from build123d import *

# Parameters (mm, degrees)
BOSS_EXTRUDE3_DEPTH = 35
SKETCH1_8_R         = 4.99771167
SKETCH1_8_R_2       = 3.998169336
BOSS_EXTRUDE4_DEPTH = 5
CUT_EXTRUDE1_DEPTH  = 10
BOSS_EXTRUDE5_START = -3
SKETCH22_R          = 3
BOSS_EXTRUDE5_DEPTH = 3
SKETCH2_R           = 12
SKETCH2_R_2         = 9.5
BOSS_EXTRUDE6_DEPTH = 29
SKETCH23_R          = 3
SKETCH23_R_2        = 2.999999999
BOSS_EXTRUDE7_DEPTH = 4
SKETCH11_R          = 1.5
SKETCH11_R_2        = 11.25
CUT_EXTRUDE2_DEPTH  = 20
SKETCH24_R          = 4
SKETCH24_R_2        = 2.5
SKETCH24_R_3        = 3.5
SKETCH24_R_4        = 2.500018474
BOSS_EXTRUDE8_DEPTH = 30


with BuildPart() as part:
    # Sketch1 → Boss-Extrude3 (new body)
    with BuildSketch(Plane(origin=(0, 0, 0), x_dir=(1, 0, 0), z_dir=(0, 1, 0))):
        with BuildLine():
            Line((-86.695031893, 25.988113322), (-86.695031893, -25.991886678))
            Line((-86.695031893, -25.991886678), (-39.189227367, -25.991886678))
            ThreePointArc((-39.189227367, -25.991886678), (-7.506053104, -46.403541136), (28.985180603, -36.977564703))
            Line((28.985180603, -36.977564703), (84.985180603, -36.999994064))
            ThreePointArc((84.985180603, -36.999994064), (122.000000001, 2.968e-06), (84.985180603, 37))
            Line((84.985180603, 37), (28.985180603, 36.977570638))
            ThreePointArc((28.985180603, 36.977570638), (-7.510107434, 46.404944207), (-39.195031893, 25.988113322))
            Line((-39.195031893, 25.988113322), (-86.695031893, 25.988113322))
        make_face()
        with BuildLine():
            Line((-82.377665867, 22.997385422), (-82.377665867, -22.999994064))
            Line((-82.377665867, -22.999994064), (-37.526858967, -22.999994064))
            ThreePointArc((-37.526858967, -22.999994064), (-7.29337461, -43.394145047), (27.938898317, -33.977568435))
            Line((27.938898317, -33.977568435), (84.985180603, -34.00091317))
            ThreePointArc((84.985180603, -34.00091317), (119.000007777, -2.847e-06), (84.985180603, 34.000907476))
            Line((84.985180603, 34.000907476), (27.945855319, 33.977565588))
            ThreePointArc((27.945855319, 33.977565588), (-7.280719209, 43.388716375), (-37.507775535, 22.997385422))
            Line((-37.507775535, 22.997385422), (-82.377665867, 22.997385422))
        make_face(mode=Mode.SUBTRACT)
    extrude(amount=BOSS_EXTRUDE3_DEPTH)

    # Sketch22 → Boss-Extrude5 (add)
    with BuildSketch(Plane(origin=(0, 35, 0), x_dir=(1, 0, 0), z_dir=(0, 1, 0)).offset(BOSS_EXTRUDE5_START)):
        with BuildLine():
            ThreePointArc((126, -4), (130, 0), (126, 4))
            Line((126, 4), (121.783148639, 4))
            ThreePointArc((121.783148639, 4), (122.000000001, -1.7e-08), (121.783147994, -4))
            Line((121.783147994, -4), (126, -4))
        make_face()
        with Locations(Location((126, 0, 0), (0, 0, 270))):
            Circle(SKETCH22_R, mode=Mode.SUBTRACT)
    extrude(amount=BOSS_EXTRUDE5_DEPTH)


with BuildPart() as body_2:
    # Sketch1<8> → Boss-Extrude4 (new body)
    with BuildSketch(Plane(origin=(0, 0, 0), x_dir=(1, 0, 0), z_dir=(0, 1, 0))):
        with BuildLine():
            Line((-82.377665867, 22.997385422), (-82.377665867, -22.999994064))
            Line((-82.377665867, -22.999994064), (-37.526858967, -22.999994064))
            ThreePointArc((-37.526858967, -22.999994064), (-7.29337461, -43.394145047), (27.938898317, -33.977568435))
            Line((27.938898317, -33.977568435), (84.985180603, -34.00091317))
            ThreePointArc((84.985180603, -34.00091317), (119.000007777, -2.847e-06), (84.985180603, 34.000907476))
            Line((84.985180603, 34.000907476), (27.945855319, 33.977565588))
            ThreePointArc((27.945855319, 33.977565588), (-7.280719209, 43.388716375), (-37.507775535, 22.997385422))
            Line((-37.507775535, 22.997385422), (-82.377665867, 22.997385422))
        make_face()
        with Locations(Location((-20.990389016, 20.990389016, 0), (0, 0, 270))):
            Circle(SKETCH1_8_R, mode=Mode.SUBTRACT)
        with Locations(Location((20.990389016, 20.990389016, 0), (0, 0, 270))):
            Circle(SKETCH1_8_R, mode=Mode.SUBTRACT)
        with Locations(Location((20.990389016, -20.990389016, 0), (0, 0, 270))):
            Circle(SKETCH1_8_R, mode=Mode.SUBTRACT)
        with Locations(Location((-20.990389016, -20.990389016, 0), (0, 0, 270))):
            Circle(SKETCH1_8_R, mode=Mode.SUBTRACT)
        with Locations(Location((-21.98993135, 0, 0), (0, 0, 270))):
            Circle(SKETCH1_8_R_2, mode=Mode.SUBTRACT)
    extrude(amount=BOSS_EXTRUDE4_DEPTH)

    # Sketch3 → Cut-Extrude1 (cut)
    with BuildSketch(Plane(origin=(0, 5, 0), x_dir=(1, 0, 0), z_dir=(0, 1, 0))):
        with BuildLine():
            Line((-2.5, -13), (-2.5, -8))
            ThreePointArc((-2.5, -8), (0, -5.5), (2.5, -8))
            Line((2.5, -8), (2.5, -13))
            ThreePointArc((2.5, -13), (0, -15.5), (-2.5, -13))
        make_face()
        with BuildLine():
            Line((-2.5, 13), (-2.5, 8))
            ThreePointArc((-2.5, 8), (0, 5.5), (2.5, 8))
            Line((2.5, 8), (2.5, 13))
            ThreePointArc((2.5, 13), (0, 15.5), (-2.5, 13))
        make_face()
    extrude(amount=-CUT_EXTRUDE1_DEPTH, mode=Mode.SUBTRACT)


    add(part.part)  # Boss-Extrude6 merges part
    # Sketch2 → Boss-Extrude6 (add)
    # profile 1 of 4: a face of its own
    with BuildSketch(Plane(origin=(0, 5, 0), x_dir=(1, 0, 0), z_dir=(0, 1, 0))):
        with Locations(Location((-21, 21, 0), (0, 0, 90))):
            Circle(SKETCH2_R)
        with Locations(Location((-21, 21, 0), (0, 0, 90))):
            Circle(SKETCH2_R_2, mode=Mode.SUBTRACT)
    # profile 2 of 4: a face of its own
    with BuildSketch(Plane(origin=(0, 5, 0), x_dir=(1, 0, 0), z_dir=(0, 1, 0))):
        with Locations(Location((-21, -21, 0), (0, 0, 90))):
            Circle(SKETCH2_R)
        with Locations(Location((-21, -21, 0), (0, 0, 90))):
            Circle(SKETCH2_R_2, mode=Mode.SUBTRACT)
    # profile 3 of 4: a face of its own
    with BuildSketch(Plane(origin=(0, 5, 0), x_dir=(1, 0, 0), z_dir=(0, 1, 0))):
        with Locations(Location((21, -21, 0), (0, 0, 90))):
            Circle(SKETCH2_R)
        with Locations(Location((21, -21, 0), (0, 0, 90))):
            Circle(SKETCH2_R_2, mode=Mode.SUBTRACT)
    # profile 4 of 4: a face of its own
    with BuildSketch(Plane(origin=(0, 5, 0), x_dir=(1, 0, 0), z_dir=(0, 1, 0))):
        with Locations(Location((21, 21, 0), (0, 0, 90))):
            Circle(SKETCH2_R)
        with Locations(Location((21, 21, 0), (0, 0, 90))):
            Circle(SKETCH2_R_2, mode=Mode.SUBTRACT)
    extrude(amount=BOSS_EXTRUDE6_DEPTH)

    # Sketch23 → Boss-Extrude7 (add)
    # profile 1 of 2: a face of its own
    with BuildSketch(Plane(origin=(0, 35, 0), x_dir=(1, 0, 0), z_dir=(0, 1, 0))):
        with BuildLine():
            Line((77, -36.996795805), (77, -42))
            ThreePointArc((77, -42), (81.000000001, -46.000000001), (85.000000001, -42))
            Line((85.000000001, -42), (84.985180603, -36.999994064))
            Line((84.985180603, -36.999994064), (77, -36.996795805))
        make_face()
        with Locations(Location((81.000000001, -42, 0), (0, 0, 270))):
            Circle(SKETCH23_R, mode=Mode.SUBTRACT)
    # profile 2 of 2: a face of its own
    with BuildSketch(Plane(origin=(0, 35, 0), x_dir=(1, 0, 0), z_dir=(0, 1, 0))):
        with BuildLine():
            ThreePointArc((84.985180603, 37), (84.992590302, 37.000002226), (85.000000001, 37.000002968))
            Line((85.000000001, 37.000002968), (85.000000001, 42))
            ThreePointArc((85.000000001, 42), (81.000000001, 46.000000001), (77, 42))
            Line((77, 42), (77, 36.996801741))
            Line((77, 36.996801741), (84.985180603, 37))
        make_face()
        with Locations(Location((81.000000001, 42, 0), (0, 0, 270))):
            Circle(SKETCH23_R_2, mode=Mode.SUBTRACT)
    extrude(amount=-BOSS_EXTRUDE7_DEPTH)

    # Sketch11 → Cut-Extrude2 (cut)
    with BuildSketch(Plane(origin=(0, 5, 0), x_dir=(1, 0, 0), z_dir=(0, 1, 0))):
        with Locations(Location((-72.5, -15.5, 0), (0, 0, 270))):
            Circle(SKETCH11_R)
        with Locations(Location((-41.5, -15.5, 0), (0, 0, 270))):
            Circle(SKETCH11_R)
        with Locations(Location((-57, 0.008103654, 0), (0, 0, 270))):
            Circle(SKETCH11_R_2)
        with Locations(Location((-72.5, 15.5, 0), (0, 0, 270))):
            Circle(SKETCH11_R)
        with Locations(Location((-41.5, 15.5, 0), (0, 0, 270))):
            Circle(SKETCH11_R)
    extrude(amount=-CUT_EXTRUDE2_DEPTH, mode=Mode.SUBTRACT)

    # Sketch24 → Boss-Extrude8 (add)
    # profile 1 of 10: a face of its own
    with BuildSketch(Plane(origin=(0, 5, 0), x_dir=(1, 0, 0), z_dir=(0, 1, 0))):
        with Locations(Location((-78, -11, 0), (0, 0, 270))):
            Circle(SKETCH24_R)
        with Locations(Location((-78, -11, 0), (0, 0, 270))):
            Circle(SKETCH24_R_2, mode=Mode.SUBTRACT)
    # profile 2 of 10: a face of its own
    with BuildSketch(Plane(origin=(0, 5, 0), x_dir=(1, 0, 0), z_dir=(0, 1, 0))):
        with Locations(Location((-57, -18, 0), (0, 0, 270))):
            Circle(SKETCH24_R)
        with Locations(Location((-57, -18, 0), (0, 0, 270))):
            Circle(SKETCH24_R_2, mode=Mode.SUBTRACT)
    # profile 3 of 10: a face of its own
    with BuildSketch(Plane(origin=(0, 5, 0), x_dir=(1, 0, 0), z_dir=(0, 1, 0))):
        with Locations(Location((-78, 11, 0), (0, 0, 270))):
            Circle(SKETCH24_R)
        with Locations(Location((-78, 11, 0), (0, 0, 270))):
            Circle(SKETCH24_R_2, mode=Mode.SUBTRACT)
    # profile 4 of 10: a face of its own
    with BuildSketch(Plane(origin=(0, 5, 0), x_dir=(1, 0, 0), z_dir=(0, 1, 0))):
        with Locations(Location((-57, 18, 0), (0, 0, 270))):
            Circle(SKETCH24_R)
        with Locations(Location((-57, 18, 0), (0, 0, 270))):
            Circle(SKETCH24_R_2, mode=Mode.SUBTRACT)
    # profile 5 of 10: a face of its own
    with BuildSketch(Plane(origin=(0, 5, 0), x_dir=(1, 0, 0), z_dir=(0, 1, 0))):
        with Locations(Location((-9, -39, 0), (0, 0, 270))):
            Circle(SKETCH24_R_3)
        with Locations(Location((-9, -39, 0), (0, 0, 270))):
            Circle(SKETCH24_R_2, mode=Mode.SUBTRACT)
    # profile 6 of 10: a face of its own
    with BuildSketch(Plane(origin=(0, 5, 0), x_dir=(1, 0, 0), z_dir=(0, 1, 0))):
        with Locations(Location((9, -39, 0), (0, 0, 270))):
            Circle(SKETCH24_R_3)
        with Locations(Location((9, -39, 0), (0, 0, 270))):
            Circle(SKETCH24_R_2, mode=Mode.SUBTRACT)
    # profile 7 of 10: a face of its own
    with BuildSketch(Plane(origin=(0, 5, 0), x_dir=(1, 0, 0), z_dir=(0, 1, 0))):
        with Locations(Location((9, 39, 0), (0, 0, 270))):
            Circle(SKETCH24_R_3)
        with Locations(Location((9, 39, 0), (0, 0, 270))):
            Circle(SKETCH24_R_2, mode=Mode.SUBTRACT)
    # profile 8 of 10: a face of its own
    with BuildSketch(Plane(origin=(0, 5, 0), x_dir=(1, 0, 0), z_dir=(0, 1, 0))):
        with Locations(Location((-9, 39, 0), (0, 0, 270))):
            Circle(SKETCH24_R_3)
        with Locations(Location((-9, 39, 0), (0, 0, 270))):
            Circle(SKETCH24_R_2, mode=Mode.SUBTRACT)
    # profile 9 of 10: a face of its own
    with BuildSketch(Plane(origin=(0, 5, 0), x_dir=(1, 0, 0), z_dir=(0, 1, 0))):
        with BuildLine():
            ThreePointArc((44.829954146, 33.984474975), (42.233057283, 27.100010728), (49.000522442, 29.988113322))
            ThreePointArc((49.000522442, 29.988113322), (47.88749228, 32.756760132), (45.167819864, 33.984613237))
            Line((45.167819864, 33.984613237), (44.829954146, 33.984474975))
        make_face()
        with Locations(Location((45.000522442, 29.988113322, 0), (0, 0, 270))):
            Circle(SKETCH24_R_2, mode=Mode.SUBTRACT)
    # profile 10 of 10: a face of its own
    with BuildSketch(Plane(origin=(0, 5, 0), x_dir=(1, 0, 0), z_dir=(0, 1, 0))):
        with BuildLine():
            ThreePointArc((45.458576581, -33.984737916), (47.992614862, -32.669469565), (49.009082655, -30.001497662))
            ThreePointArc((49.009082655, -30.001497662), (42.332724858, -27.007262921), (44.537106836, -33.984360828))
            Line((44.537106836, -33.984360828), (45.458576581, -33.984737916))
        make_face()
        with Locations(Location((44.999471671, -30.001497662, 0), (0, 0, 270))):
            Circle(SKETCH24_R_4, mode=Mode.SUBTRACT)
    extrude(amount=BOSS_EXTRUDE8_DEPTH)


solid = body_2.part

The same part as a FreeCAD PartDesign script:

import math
import FreeCAD as App
import Part
import Sketcher

V = App.Vector
Q = App.Units.Quantity

doc = App.newDocument("Part")
body = doc.addObject("PartDesign::Body", "Body")

# Sketch on XZ plane
sketch1 = doc.addObject("Sketcher::SketchObject", "Sketch")
body.addObject(sketch1)
sketch1.AttachmentSupport = (doc.XZ_Plane, [""])
sketch1.MapMode = "FlatFace"
sketch1.addGeometry([
    Part.LineSegment(V(-86.695032, -25.988113, 0), V(-86.695032, 25.991887, 0)),  # 0
    Part.LineSegment(V(-86.695032, 25.991887, 0), V(-39.189227, 25.991887, 0)),  # 1
    Part.ArcOfCircle(Part.Circle(V(-0.028891, 0.002118, 0), V(0, 0, 1), 47), math.radians(51.879261), math.radians(146.428732)),  # 2
    Part.LineSegment(V(28.985181, 36.977565, 0), V(84.985181, 36.999994, 0)),  # 3
    Part.ArcOfCircle(Part.Circle(V(85, -0.000003, 0), V(0, 0, 1), 37), math.radians(-90.022948), math.radians(90.022948)),  # 4
    Part.LineSegment(V(84.985181, -37, 0), V(28.985181, -36.977571, 0)),  # 5
    Part.ArcOfCircle(Part.Circle(V(-0.031059, -0.003825, 0), V(0, 0, 1), 47), math.radians(-146.43675), math.radians(-51.875902)),  # 6
    Part.LineSegment(V(-39.195032, -25.988113, 0), V(-86.695032, -25.988113, 0)),  # 7
    Part.LineSegment(V(-82.377666, 22.999994, 0), V(-82.377666, -22.997385, 0)),  # 8
    Part.LineSegment(V(-82.377666, -22.997385, 0), V(-37.507776, -22.997385, 0)),  # 9
    Part.ArcOfCircle(Part.Circle(V(-0.002041, 0, 0), V(0, 0, 1), 43.994998), math.radians(-148.48463), math.radians(-50.561347)),  # 10
    Part.LineSegment(V(27.945855, -33.977566, 0), V(84.985181, -34.000907, 0)),  # 11
    Part.ArcOfCircle(Part.Circle(V(84.999095, 0.000003, 0), V(0, 0, 1), 34.000913), math.radians(-90.023447), math.radians(90.023447)),  # 12
    Part.LineSegment(V(84.985181, 34.000913, 0), V(27.938898, 33.977568, 0)),  # 13
    Part.ArcOfCircle(Part.Circle(V(-0.01686, -0.000006, 0), V(0, 0, 1), 44), math.radians(50.553447), math.radians(148.48463)),  # 14
    Part.LineSegment(V(-37.526859, 22.999994, 0), V(-82.377666, 22.999994, 0)),  # 15
], False)
sketch1.addConstraint([
    Sketcher.Constraint("Coincident", 0, 2, 1, 1),
    Sketcher.Constraint("Coincident", 1, 2, 2, 2),
    Sketcher.Constraint("Coincident", 2, 1, 3, 1),
    Sketcher.Constraint("Coincident", 3, 2, 4, 2),
    Sketcher.Constraint("Coincident", 4, 1, 5, 1),
    Sketcher.Constraint("Coincident", 5, 2, 6, 2),
    Sketcher.Constraint("Coincident", 6, 1, 7, 1),
    Sketcher.Constraint("Coincident", 7, 2, 0, 1),
    Sketcher.Constraint("Coincident", 8, 2, 9, 1),
    Sketcher.Constraint("Coincident", 9, 2, 10, 1),
    Sketcher.Constraint("Coincident", 10, 2, 11, 1),
    Sketcher.Constraint("Coincident", 11, 2, 12, 1),
    Sketcher.Constraint("Coincident", 12, 2, 13, 1),
    Sketcher.Constraint("Coincident", 13, 2, 14, 1),
    Sketcher.Constraint("Coincident", 14, 2, 15, 1),
    Sketcher.Constraint("Coincident", 15, 2, 8, 1),
    Sketcher.Constraint("Vertical", 0),
    Sketcher.Constraint("Horizontal", 1),
    Sketcher.Constraint("Horizontal", 7),
    Sketcher.Constraint("Vertical", 8),
    Sketcher.Constraint("Horizontal", 9),
    Sketcher.Constraint("Horizontal", 15),
    Sketcher.Constraint("PointOnObject", 10, 3, -1),
    Sketcher.Constraint("Radius", 2, Q("47 mm")),
    Sketcher.Constraint("Radius", 4, Q("37 mm")),
    Sketcher.Constraint("Radius", 6, Q("47 mm")),
    Sketcher.Constraint("Radius", 14, Q("44 mm")),
    Sketcher.Constraint("DistanceX", 7, 2, 7, 1, Q("47.5 mm")),
    Sketcher.Constraint("DistanceX", -1, 1, 4, 3, Q("85 mm")),
    Sketcher.Constraint("DistanceY", 4, 1, -1, 1, Q("37 mm")),
    Sketcher.Constraint("Radius", 10, Q("43.994998 mm")),
    Sketcher.Constraint("DistanceX", 2, 1, 3, 2, Q("56 mm")),
    Sketcher.Constraint("DistanceY", 14, 3, 3, 2, Q("37 mm")),
    Sketcher.Constraint("DistanceX", 5, 2, 4, 1, Q("56 mm")),
    Sketcher.Constraint("DistanceX", 5, 2, 11, 2, Q("56 mm")),
    Sketcher.Constraint("DistanceX", 2, 1, 12, 2, Q("56 mm")),
    Sketcher.Constraint("DistanceY", 14, 3, 14, 2, Q("23 mm")),
    Sketcher.Constraint("DistanceY", 0, 1, 0, 2, Q("51.98 mm")),
    Sketcher.Constraint("Radius", 12, Q("34.000913 mm")),
    Sketcher.Constraint("DistanceX", 9, 1, 9, 2, Q("44.86989 mm")),
    Sketcher.Constraint("DistanceY", 8, 2, 8, 1, Q("45.997379 mm")),
    Sketcher.Constraint("DistanceX", -1, 1, 13, 2, Q("27.938898 mm")),
    Sketcher.Constraint("DistanceX", 6, 3, 14, 3, Q("0.014199 mm")),
    Sketcher.Constraint("Distance", 11, Q("57.03933 mm")),
    Sketcher.Constraint("DistanceX", 1, 1, 1, 2, Q("47.505805 mm")),
    Sketcher.Constraint("DistanceX", 15, 2, 15, 1, Q("44.850807 mm")),
    Sketcher.Constraint("DistanceX", 2, 3, -1, 1, Q("0.028891 mm")),
    Sketcher.Constraint("DistanceY", -1, 1, 2, 3, Q("0.002118 mm")),
    Sketcher.Constraint("DistanceX", 6, 3, -1, 1, Q("0.031059 mm")),
    Sketcher.Constraint("DistanceX", 0, 2, -1, 1, Q("86.695032 mm")),
    Sketcher.Constraint("DistanceX", -1, 1, 2, 1, Q("28.985181 mm")),
    Sketcher.Constraint("DistanceX", -1, 1, 4, 1, Q("84.985181 mm")),
    Sketcher.Constraint("DistanceY", 6, 3, 12, 3, Q("0.003828 mm")),
    Sketcher.Constraint("DistanceX", -1, 1, 12, 3, Q("84.999095 mm")),
])
pad1 = doc.addObject("PartDesign::Pad", "Pad")
body.addObject(pad1)
pad1.Profile = sketch1
pad1.Length = 35
pad1.Reversed = True

# Sketch on XZ plane
sketch2 = doc.addObject("Sketcher::SketchObject", "Sketch001")
body.addObject(sketch2)
sketch2.AttachmentSupport = (doc.XZ_Plane, [""])
sketch2.MapMode = "FlatFace"
sketch2.AttachmentOffset = App.Placement(V(0, 0, -32), App.Rotation())
sketch2.addGeometry([
    Part.ArcOfCircle(Part.Circle(V(126, 0, 0), V(0, 0, 1), 4), math.radians(-90), math.radians(90)),  # 0
    Part.LineSegment(V(126, -4, 0), V(121.8, -4, 0)),  # 1
    Part.ArcOfCircle(Part.Circle(V(85, 0, 0), V(0, 0, 1), 37), math.radians(-6.21), math.radians(6.21)),  # 2
    Part.LineSegment(V(121.8, 4, 0), V(126, 4, 0)),  # 3
    Part.Circle(V(126, 0, 0), V(0, 0, 1), 3),  # 4
], False)
sketch2.addConstraint([
    Sketcher.Constraint("Tangent", 0, 1, 1, 1),
    Sketcher.Constraint("Coincident", 1, 2, 2, 1),
    Sketcher.Constraint("Coincident", 2, 2, 3, 1),
    Sketcher.Constraint("Tangent", 3, 2, 0, 2),
    Sketcher.Constraint("Horizontal", 1),
    Sketcher.Constraint("Horizontal", 3),
    Sketcher.Constraint("Coincident", 4, 3, 0, 3),
    Sketcher.Constraint("Symmetric", 1, 2, 2, 2, -1),
    Sketcher.Constraint("Diameter", 4, Q("6 mm")),
    Sketcher.Constraint("Radius", 0, Q("4 mm")),
    Sketcher.Constraint("Radius", 2, Q("37 mm")),
    Sketcher.Constraint("DistanceX", -1, 1, 0, 3, Q("126 mm")),
    Sketcher.Constraint("DistanceX", -1, 1, 2, 3, Q("85 mm")),
])
pad2 = doc.addObject("PartDesign::Pad", "Pad001")
body.addObject(pad2)
pad2.Profile = sketch2
pad2.Length = 3
pad2.Reversed = True
body2 = doc.addObject("PartDesign::Body", "Body001")

# Sketch on XZ plane
sketch3 = doc.addObject("Sketcher::SketchObject", "Sketch002")
body2.addObject(sketch3)
sketch3.AttachmentSupport = (doc.getObject("XZ_Plane001"), [""])
sketch3.MapMode = "FlatFace"
sketch3.addGeometry([
    Part.LineSegment(V(-82.4, -23, 0), V(-82.4, 23, 0)),  # 0
    Part.LineSegment(V(-82.4, 23, 0), V(-37.5, 23, 0)),  # 1
    Part.ArcOfCircle(Part.Circle(V(0, 0, 0), V(0, 0, 1), 44), math.radians(51), math.radians(148)),  # 2
    Part.LineSegment(V(27.9, 34, 0), V(85, 34, 0)),  # 3
    Part.ArcOfCircle(Part.Circle(V(85, 0, 0), V(0, 0, 1), 34), math.radians(-90), math.radians(90)),  # 4
    Part.LineSegment(V(85, -34, 0), V(27.9, -34, 0)),  # 5
    Part.ArcOfCircle(Part.Circle(V(0, 0, 0), V(0, 0, 1), 44), math.radians(-148), math.radians(-51)),  # 6
    Part.LineSegment(V(-37.5, -23, 0), V(-82.4, -23, 0)),  # 7
    Part.Circle(V(-21, 21, 0), V(0, 0, 1), 5),  # 8
    Part.Circle(V(-22, 0, 0), V(0, 0, 1), 4),  # 9
    Part.Circle(V(21, 21, 0), V(0, 0, 1), 5),  # 10
    Part.Circle(V(-21, -21, 0), V(0, 0, 1), 5),  # 11
    Part.Circle(V(21, -21, 0), V(0, 0, 1), 5),  # 12
], False)
sketch3.addConstraint([
    Sketcher.Constraint("Coincident", 0, 2, 1, 1),
    Sketcher.Constraint("Coincident", 1, 2, 2, 2),
    Sketcher.Constraint("Coincident", 2, 1, 3, 1),
    Sketcher.Constraint("Tangent", 3, 2, 4, 2),
    Sketcher.Constraint("Tangent", 4, 1, 5, 1),
    Sketcher.Constraint("Coincident", 5, 2, 6, 2),
    Sketcher.Constraint("Coincident", 6, 1, 7, 1),
    Sketcher.Constraint("Coincident", 7, 2, 0, 1),
    Sketcher.Constraint("Vertical", 0),
    Sketcher.Constraint("Horizontal", 1),
    Sketcher.Constraint("Horizontal", 7),
    Sketcher.Constraint("Equal", 8, 10),
    Sketcher.Constraint("Equal", 10, 11),
    Sketcher.Constraint("Equal", 11, 12),
    Sketcher.Constraint("Symmetric", 10, 3, 11, 3, -1, 1),
    Sketcher.Constraint("Symmetric", 8, 3, 12, 3, -1, 1),
    Sketcher.Constraint("Symmetric", 8, 3, 10, 3, -2),
    Sketcher.Constraint("Symmetric", 3, 2, 4, 1, -1),
    Sketcher.Constraint("PointOnObject", 6, 3, -1),
    Sketcher.Constraint("PointOnObject", 9, 3, -1),
    Sketcher.Constraint("Radius", 2, Q("44 mm")),
    Sketcher.Constraint("Radius", 6, Q("43.994998 mm")),
    Sketcher.Constraint("DistanceY", 2, 3, 0, 2, Q("23 mm")),
    Sketcher.Constraint("Diameter", 9, Q("7.996339 mm")),
    Sketcher.Constraint("Diameter", 8, Q("9.995423 mm")),
    Sketcher.Constraint("Radius", 4, Q("34.000913 mm")),
    Sketcher.Constraint("DistanceX", 7, 2, 7, 1, Q("44.86989 mm")),
    Sketcher.Constraint("DistanceY", 0, 1, 0, 2, Q("45.997379 mm")),
    Sketcher.Constraint("DistanceX", -1, 1, 2, 1, Q("27.938898 mm")),
    Sketcher.Constraint("Distance", 5, Q("57.03933 mm")),
    Sketcher.Constraint("DistanceX", 1, 1, 1, 2, Q("44.850807 mm")),
    Sketcher.Constraint("DistanceX", 2, 3, -1, 1, Q("0.01686 mm")),
    Sketcher.Constraint("DistanceX", 6, 3, -1, 1, Q("0.002041 mm")),
    Sketcher.Constraint("DistanceX", 8, 3, -1, 1, Q("20.990389 mm")),
    Sketcher.Constraint("DistanceY", -1, 1, 8, 3, Q("20.990389 mm")),
    Sketcher.Constraint("DistanceX", 9, 3, -1, 1, Q("21.989931 mm")),
])
pad3 = doc.addObject("PartDesign::Pad", "Pad002")
body2.addObject(pad3)
pad3.Profile = sketch3
pad3.Length = 5
pad3.Reversed = True

# Sketch on XZ plane
sketch4 = doc.addObject("Sketcher::SketchObject", "Sketch003")
body2.addObject(sketch4)
sketch4.AttachmentSupport = (doc.getObject("XZ_Plane001"), [""])
sketch4.MapMode = "FlatFace"
sketch4.AttachmentOffset = App.Placement(V(0, 0, -5), App.Rotation())
sketch4.addGeometry([
    Part.LineSegment(V(-2.5, 8, 0), V(-2.5, 13, 0)),  # 0
    Part.ArcOfCircle(Part.Circle(V(0, 13, 0), V(0, 0, 1), 2.5), math.radians(0), math.radians(180)),  # 1
    Part.LineSegment(V(2.5, 13, 0), V(2.5, 8, 0)),  # 2
    Part.ArcOfCircle(Part.Circle(V(0, 8, 0), V(0, 0, 1), 2.5), math.radians(180), math.radians(360)),  # 3
    Part.LineSegment(V(-2.5, -13, 0), V(-2.5, -8, 0)),  # 4
    Part.ArcOfCircle(Part.Circle(V(0, -8, 0), V(0, 0, 1), 2.5), math.radians(0), math.radians(180)),  # 5
    Part.LineSegment(V(2.5, -8, 0), V(2.5, -13, 0)),  # 6
    Part.ArcOfCircle(Part.Circle(V(0, -13, 0), V(0, 0, 1), 2.5), math.radians(180), math.radians(360)),  # 7
], False)
sketch4.addConstraint([
    Sketcher.Constraint("Tangent", 0, 2, 1, 2),
    Sketcher.Constraint("Tangent", 1, 1, 2, 1),
    Sketcher.Constraint("Tangent", 2, 2, 3, 2),
    Sketcher.Constraint("Tangent", 3, 1, 0, 1),
    Sketcher.Constraint("Tangent", 4, 2, 5, 2),
    Sketcher.Constraint("Tangent", 5, 1, 6, 1),
    Sketcher.Constraint("Tangent", 6, 2, 7, 2),
    Sketcher.Constraint("Tangent", 7, 1, 4, 1),
    Sketcher.Constraint("Vertical", 0),
    Sketcher.Constraint("Vertical", 2),
    Sketcher.Constraint("Vertical", 4),
    Sketcher.Constraint("Vertical", 6),
    Sketcher.Constraint("Equal", 3, 5),
    Sketcher.Constraint("Symmetric", 3, 3, 5, 3, -1, 1),
    Sketcher.Constraint("Symmetric", 1, 3, 7, 3, -1),
    Sketcher.Constraint("Radius", 1, Q("2.5 mm")),
    Sketcher.Constraint("DistanceY", 0, 1, 0, 2, Q("5 mm")),
    Sketcher.Constraint("DistanceY", -1, 1, 1, 3, Q("13 mm")),
])
pocket1 = doc.addObject("PartDesign::Pocket", "Pocket")
body2.addObject(pocket1)
pocket1.Profile = sketch4
pocket1.Length = 10
pocket1.Reversed = True
doc.recompute()

boolean = doc.addObject("PartDesign::Boolean", "Boolean")
body2.addObject(boolean)
boolean.Type = "Fuse"
boolean.addObjects([body])

# Sketch on XZ plane
sketch5 = doc.addObject("Sketcher::SketchObject", "Sketch004")
body2.addObject(sketch5)
sketch5.AttachmentSupport = (doc.getObject("XZ_Plane001"), [""])
sketch5.MapMode = "FlatFace"
sketch5.AttachmentOffset = App.Placement(V(0, 0, -5), App.Rotation())
sketch5.addGeometry([
    Part.Circle(V(-21, -21, 0), V(0, 0, 1), 12),  # 0
    Part.Circle(V(-21, -21, 0), V(0, 0, 1), 10),  # 1
    Part.Circle(V(-21, 21, 0), V(0, 0, 1), 12),  # 2
    Part.Circle(V(-21, 21, 0), V(0, 0, 1), 10),  # 3
    Part.Circle(V(21, 21, 0), V(0, 0, 1), 12),  # 4
    Part.Circle(V(21, 21, 0), V(0, 0, 1), 10),  # 5
    Part.Circle(V(21, -21, 0), V(0, 0, 1), 12),  # 6
    Part.Circle(V(21, -21, 0), V(0, 0, 1), 10),  # 7
], False)
sketch5.addConstraint([
    Sketcher.Constraint("Coincident", 1, 3, 0, 3),
    Sketcher.Constraint("Coincident", 3, 3, 2, 3),
    Sketcher.Constraint("Coincident", 5, 3, 4, 3),
    Sketcher.Constraint("Coincident", 7, 3, 6, 3),
    Sketcher.Constraint("Equal", 0, 2),
    Sketcher.Constraint("Equal", 1, 3),
    Sketcher.Constraint("Equal", 2, 4),
    Sketcher.Constraint("Equal", 3, 5),
    Sketcher.Constraint("Equal", 4, 6),
    Sketcher.Constraint("Equal", 5, 7),
    Sketcher.Constraint("Symmetric", 0, 3, 4, 3, -1, 1),
    Sketcher.Constraint("Symmetric", 2, 3, 6, 3, -1, 1),
    Sketcher.Constraint("Symmetric", 2, 3, 4, 3, -2),
    Sketcher.Constraint("Diameter", 0, Q("24 mm")),
    Sketcher.Constraint("Diameter", 1, Q("19 mm")),
    Sketcher.Constraint("DistanceX", 0, 3, -1, 1, Q("21 mm")),
    Sketcher.Constraint("DistanceY", 0, 3, -1, 1, Q("21 mm")),
])
pad4 = doc.addObject("PartDesign::Pad", "Pad003")
body2.addObject(pad4)
pad4.Profile = sketch5
pad4.Length = 29
pad4.Reversed = True

# Sketch on XZ plane
sketch6 = doc.addObject("Sketcher::SketchObject", "Sketch005")
body2.addObject(sketch6)
sketch6.AttachmentSupport = (doc.getObject("XZ_Plane001"), [""])
sketch6.MapMode = "FlatFace"
sketch6.AttachmentOffset = App.Placement(V(0, 0, -35), App.Rotation())
sketch6.addGeometry([
    Part.LineSegment(V(77, 36.997, 0), V(77, 42, 0)),  # 0
    Part.ArcOfCircle(Part.Circle(V(81, 42, 0), V(0, 0, 1), 4), math.radians(0), math.radians(180)),  # 1
    Part.LineSegment(V(85, 42, 0), V(84.985, 37, 0)),  # 2
    Part.LineSegment(V(84.985, 37, 0), V(77, 36.997, 0)),  # 3
    Part.Circle(V(81, 42, 0), V(0, 0, 1), 3),  # 4
    Part.ArcOfCircle(Part.Circle(V(85, -0.003, 0), V(0, 0, 1), 36.997), math.radians(-90.02), math.radians(-90)),  # 5
    Part.LineSegment(V(85, -37, 0), V(85, -42, 0)),  # 6
    Part.ArcOfCircle(Part.Circle(V(81, -42, 0), V(0, 0, 1), 4), math.radians(180), math.radians(360)),  # 7
    Part.LineSegment(V(77, -42, 0), V(77, -36.997, 0)),  # 8
    Part.LineSegment(V(77, -36.997, 0), V(84.985, -37, 0)),  # 9
    Part.Circle(V(81, -42, 0), V(0, 0, 1), 3),  # 10
], False)
sketch6.addConstraint([
    Sketcher.Constraint("Tangent", 0, 2, 1, 2),
    Sketcher.Constraint("Coincident", 1, 1, 2, 1),
    Sketcher.Constraint("Coincident", 2, 2, 3, 1),
    Sketcher.Constraint("Coincident", 3, 2, 0, 1),
    Sketcher.Constraint("Coincident", 5, 2, 6, 1),
    Sketcher.Constraint("Tangent", 6, 2, 7, 2),
    Sketcher.Constraint("Tangent", 7, 1, 8, 1),
    Sketcher.Constraint("Coincident", 8, 2, 9, 1),
    Sketcher.Constraint("Tangent", 9, 2, 5, 1),
    Sketcher.Constraint("Vertical", 0),
    Sketcher.Constraint("Vertical", 6),
    Sketcher.Constraint("Vertical", 8),
    Sketcher.Constraint("Coincident", 4, 3, 1, 3),
    Sketcher.Constraint("Coincident", 10, 3, 7, 3),
    Sketcher.Constraint("Equal", 1, 7),
    Sketcher.Constraint("Equal", 4, 10),
    Sketcher.Constraint("Symmetric", 1, 3, 7, 3, -1),
    Sketcher.Constraint("Symmetric", 2, 2, 9, 2, -1),
    Sketcher.Constraint("Horizontal", 0, 2, 1, 1),
    Sketcher.Constraint("Vertical", 5, 3, 1, 1),
    Sketcher.Constraint("Diameter", 4, Q("6 mm")),
    Sketcher.Constraint("Radius", 1, Q("4 mm")),
    Sketcher.Constraint("DistanceX", -1, 1, 1, 3, Q("81 mm")),
    Sketcher.Constraint("DistanceY", -1, 1, 1, 3, Q("42 mm")),
    Sketcher.Constraint("DistanceY", 9, 2, -1, 1, Q("37 mm")),
    Sketcher.Constraint("DistanceY", 8, 1, 8, 2, Q("5.003198 mm")),
    Sketcher.Constraint("Radius", 5, Q("36.997064 mm")),
    Sketcher.Constraint("DistanceY", 3, 2, 2, 2, Q("0.003198 mm")),
])
pad5 = doc.addObject("PartDesign::Pad", "Pad004")
body2.addObject(pad5)
pad5.Profile = sketch6
pad5.Length = 4

# Sketch on XZ plane
sketch7 = doc.addObject("Sketcher::SketchObject", "Sketch006")
body2.addObject(sketch7)
sketch7.AttachmentSupport = (doc.getObject("XZ_Plane001"), [""])
sketch7.MapMode = "FlatFace"
sketch7.AttachmentOffset = App.Placement(V(0, 0, -5), App.Rotation())
sketch7.addGeometry([
    Part.Circle(V(-72.5, 15.5, 0), V(0, 0, 1), 1.5),  # 0
    Part.Circle(V(-41.5, 15.5, 0), V(0, 0, 1), 1.5),  # 1
    Part.Circle(V(-57, 0, 0), V(0, 0, 1), 11.2),  # 2
    Part.Circle(V(-72.5, -15.5, 0), V(0, 0, 1), 1.5),  # 3
    Part.Circle(V(-41.5, -15.5, 0), V(0, 0, 1), 1.5),  # 4
], False)
sketch7.addConstraint([
    Sketcher.Constraint("Equal", 0, 1),
    Sketcher.Constraint("Equal", 1, 3),
    Sketcher.Constraint("Equal", 3, 4),
    Sketcher.Constraint("Symmetric", 0, 3, 3, 3, -1),
    Sketcher.Constraint("Symmetric", 1, 3, 4, 3, -1),
    Sketcher.Constraint("Horizontal", 0, 3, 1, 3),
    Sketcher.Constraint("Diameter", 0, Q("3 mm")),
    Sketcher.Constraint("Diameter", 2, Q("22.5 mm")),
    Sketcher.Constraint("DistanceX", 2, 3, -1, 1, Q("57 mm")),
    Sketcher.Constraint("DistanceX", 0, 3, 1, 3, Q("31 mm")),
    Sketcher.Constraint("DistanceY", 3, 3, 0, 3, Q("31 mm")),
    Sketcher.Constraint("DistanceX", 0, 3, -1, 1, Q("72.5 mm")),
    Sketcher.Constraint("DistanceY", 2, 3, -1, 1, Q("0.008104 mm")),
])
pocket2 = doc.addObject("PartDesign::Pocket", "Pocket001")
body2.addObject(pocket2)
pocket2.Profile = sketch7
pocket2.Length = 20
pocket2.Reversed = True

# Sketch on XZ plane
sketch8 = doc.addObject("Sketcher::SketchObject", "Sketch007")
body2.addObject(sketch8)
sketch8.AttachmentSupport = (doc.getObject("XZ_Plane001"), [""])
sketch8.MapMode = "FlatFace"
sketch8.AttachmentOffset = App.Placement(V(0, 0, -5), App.Rotation())
sketch8.addGeometry([
    Part.Circle(V(-78, 11, 0), V(0, 0, 1), 4),  # 0
    Part.Circle(V(-78, 11, 0), V(0, 0, 1), 2.5),  # 1
    Part.Circle(V(-57, 18, 0), V(0, 0, 1), 4),  # 2
    Part.Circle(V(-57, 18, 0), V(0, 0, 1), 2.5),  # 3
    Part.Circle(V(-78, -11, 0), V(0, 0, 1), 4),  # 4
    Part.Circle(V(-78, -11, 0), V(0, 0, 1), 2.5),  # 5
    Part.Circle(V(-57, -18, 0), V(0, 0, 1), 4),  # 6
    Part.Circle(V(-57, -18, 0), V(0, 0, 1), 2.5),  # 7
    Part.Circle(V(-9, 39, 0), V(0, 0, 1), 3.5),  # 8
    Part.Circle(V(-9, 39, 0), V(0, 0, 1), 2.5),  # 9
    Part.Circle(V(9, 39, 0), V(0, 0, 1), 3.5),  # 10
    Part.Circle(V(9, 39, 0), V(0, 0, 1), 2.5),  # 11
    Part.Circle(V(9, -39, 0), V(0, 0, 1), 3.5),  # 12
    Part.Circle(V(9, -39, 0), V(0, 0, 1), 2.5),  # 13
    Part.Circle(V(-9, -39, 0), V(0, 0, 1), 3.5),  # 14
    Part.Circle(V(-9, -39, 0), V(0, 0, 1), 2.5),  # 15
    Part.ArcOfCircle(Part.Circle(V(45, -29.99, 0), V(0, 0, 1), 4), math.radians(0), math.radians(268)),  # 16
    Part.ArcOfCircle(Part.Circle(V(45, -29.99, 0), V(0, 0, 1), 4), math.radians(-88), math.radians(0)),  # 17
    Part.LineSegment(V(45.17, -33.98, 0), V(44.83, -33.98, 0)),  # 18
    Part.Circle(V(45, -29.99, 0), V(0, 0, 1), 2.5),  # 19
    Part.ArcOfCircle(Part.Circle(V(45, 30, 0), V(0, 0, 1), 4.01), math.radians(0), math.radians(83)),  # 20
    Part.ArcOfCircle(Part.Circle(V(45, 30, 0), V(0, 0, 1), 4.01), math.radians(97), math.radians(360)),  # 21
    Part.LineSegment(V(44.54, 33.98, 0), V(45.46, 33.98, 0)),  # 22
    Part.Circle(V(45, 30, 0), V(0, 0, 1), 2.5),  # 23
], False)
sketch8.addConstraint([
    Sketcher.Constraint("Tangent", 16, 1, 17, 2),
    Sketcher.Constraint("Coincident", 17, 1, 18, 1),
    Sketcher.Constraint("Coincident", 18, 2, 16, 2),
    Sketcher.Constraint("Tangent", 20, 1, 21, 2),
    Sketcher.Constraint("Coincident", 21, 1, 22, 1),
    Sketcher.Constraint("Coincident", 22, 2, 20, 2),
    Sketcher.Constraint("Coincident", 1, 3, 0, 3),
    Sketcher.Constraint("Coincident", 3, 3, 2, 3),
    Sketcher.Constraint("Coincident", 5, 3, 4, 3),
    Sketcher.Constraint("Coincident", 7, 3, 6, 3),
    Sketcher.Constraint("Coincident", 9, 3, 8, 3),
    Sketcher.Constraint("Coincident", 11, 3, 10, 3),
    Sketcher.Constraint("Coincident", 13, 3, 12, 3),
    Sketcher.Constraint("Coincident", 15, 3, 14, 3),
    Sketcher.Constraint("Coincident", 19, 3, 16, 3),
    Sketcher.Constraint("Coincident", 23, 3, 20, 3),
    Sketcher.Constraint("Equal", 0, 2),
    Sketcher.Constraint("Equal", 1, 3),
    Sketcher.Constraint("Equal", 2, 4),
    Sketcher.Constraint("Equal", 3, 5),
    Sketcher.Constraint("Equal", 4, 6),
    Sketcher.Constraint("Equal", 5, 7),
    Sketcher.Constraint("Equal", 7, 9),
    Sketcher.Constraint("Equal", 8, 10),
    Sketcher.Constraint("Equal", 9, 11),
    Sketcher.Constraint("Equal", 10, 12),
    Sketcher.Constraint("Equal", 11, 13),
    Sketcher.Constraint("Equal", 12, 14),
    Sketcher.Constraint("Equal", 13, 15),
    Sketcher.Constraint("Equal", 6, 16),
    Sketcher.Constraint("Equal", 16, 17),
    Sketcher.Constraint("Equal", 15, 19),
    Sketcher.Constraint("Equal", 20, 21),
    Sketcher.Constraint("Symmetric", 8, 3, 12, 3, -1, 1),
    Sketcher.Constraint("Symmetric", 10, 3, 14, 3, -1, 1),
    Sketcher.Constraint("Symmetric", 8, 3, 10, 3, -2),
    Sketcher.Constraint("Symmetric", 0, 3, 4, 3, -1),
    Sketcher.Constraint("Symmetric", 2, 3, 6, 3, -1),
    Sketcher.Constraint("Horizontal", 19, 3, 16, 1),
    Sketcher.Constraint("Horizontal", 23, 3, 20, 1),
    Sketcher.Constraint("Diameter", 0, Q("8 mm")),
    Sketcher.Constraint("Diameter", 1, Q("5 mm")),
    Sketcher.Constraint("Diameter", 8, Q("7 mm")),
    Sketcher.Constraint("DistanceX", 0, 3, -1, 1, Q("78 mm")),
    Sketcher.Constraint("DistanceY", -1, 1, 0, 3, Q("11 mm")),
    Sketcher.Constraint("DistanceX", 2, 3, -1, 1, Q("57 mm")),
    Sketcher.Constraint("DistanceY", -1, 1, 2, 3, Q("18 mm")),
    Sketcher.Constraint("DistanceX", 8, 3, -1, 1, Q("9 mm")),
    Sketcher.Constraint("DistanceY", -1, 1, 8, 3, Q("39 mm")),
    Sketcher.Constraint("Radius", 20, Q("4.009611 mm")),
    Sketcher.Constraint("Diameter", 23, Q("5.000037 mm")),
    Sketcher.Constraint("DistanceY", 17, 1, 17, 3, Q("3.9965 mm")),
    Sketcher.Constraint("Distance", 22, Q("0.92147 mm")),
    Sketcher.Constraint("DistanceX", -1, 1, 20, 3, Q("44.999472 mm")),
    Sketcher.Constraint("DistanceX", -1, 1, 17, 1, Q("45.16782 mm")),
    Sketcher.Constraint("DistanceY", -1, 1, 21, 1, Q("33.984361 mm")),
    Sketcher.Constraint("DistanceY", 16, 3, 20, 3, Q("59.989611 mm")),
    Sketcher.Constraint("DistanceY", 17, 1, 18, 2, Q("0.000138 mm")),
    Sketcher.Constraint("DistanceY", 23, 3, 22, 2, Q("3.98324 mm")),
])
pad6 = doc.addObject("PartDesign::Pad", "Pad005")
body2.addObject(pad6)
pad6.Profile = sketch8
pad6.Length = 30
pad6.Reversed = True

doc.recompute()
